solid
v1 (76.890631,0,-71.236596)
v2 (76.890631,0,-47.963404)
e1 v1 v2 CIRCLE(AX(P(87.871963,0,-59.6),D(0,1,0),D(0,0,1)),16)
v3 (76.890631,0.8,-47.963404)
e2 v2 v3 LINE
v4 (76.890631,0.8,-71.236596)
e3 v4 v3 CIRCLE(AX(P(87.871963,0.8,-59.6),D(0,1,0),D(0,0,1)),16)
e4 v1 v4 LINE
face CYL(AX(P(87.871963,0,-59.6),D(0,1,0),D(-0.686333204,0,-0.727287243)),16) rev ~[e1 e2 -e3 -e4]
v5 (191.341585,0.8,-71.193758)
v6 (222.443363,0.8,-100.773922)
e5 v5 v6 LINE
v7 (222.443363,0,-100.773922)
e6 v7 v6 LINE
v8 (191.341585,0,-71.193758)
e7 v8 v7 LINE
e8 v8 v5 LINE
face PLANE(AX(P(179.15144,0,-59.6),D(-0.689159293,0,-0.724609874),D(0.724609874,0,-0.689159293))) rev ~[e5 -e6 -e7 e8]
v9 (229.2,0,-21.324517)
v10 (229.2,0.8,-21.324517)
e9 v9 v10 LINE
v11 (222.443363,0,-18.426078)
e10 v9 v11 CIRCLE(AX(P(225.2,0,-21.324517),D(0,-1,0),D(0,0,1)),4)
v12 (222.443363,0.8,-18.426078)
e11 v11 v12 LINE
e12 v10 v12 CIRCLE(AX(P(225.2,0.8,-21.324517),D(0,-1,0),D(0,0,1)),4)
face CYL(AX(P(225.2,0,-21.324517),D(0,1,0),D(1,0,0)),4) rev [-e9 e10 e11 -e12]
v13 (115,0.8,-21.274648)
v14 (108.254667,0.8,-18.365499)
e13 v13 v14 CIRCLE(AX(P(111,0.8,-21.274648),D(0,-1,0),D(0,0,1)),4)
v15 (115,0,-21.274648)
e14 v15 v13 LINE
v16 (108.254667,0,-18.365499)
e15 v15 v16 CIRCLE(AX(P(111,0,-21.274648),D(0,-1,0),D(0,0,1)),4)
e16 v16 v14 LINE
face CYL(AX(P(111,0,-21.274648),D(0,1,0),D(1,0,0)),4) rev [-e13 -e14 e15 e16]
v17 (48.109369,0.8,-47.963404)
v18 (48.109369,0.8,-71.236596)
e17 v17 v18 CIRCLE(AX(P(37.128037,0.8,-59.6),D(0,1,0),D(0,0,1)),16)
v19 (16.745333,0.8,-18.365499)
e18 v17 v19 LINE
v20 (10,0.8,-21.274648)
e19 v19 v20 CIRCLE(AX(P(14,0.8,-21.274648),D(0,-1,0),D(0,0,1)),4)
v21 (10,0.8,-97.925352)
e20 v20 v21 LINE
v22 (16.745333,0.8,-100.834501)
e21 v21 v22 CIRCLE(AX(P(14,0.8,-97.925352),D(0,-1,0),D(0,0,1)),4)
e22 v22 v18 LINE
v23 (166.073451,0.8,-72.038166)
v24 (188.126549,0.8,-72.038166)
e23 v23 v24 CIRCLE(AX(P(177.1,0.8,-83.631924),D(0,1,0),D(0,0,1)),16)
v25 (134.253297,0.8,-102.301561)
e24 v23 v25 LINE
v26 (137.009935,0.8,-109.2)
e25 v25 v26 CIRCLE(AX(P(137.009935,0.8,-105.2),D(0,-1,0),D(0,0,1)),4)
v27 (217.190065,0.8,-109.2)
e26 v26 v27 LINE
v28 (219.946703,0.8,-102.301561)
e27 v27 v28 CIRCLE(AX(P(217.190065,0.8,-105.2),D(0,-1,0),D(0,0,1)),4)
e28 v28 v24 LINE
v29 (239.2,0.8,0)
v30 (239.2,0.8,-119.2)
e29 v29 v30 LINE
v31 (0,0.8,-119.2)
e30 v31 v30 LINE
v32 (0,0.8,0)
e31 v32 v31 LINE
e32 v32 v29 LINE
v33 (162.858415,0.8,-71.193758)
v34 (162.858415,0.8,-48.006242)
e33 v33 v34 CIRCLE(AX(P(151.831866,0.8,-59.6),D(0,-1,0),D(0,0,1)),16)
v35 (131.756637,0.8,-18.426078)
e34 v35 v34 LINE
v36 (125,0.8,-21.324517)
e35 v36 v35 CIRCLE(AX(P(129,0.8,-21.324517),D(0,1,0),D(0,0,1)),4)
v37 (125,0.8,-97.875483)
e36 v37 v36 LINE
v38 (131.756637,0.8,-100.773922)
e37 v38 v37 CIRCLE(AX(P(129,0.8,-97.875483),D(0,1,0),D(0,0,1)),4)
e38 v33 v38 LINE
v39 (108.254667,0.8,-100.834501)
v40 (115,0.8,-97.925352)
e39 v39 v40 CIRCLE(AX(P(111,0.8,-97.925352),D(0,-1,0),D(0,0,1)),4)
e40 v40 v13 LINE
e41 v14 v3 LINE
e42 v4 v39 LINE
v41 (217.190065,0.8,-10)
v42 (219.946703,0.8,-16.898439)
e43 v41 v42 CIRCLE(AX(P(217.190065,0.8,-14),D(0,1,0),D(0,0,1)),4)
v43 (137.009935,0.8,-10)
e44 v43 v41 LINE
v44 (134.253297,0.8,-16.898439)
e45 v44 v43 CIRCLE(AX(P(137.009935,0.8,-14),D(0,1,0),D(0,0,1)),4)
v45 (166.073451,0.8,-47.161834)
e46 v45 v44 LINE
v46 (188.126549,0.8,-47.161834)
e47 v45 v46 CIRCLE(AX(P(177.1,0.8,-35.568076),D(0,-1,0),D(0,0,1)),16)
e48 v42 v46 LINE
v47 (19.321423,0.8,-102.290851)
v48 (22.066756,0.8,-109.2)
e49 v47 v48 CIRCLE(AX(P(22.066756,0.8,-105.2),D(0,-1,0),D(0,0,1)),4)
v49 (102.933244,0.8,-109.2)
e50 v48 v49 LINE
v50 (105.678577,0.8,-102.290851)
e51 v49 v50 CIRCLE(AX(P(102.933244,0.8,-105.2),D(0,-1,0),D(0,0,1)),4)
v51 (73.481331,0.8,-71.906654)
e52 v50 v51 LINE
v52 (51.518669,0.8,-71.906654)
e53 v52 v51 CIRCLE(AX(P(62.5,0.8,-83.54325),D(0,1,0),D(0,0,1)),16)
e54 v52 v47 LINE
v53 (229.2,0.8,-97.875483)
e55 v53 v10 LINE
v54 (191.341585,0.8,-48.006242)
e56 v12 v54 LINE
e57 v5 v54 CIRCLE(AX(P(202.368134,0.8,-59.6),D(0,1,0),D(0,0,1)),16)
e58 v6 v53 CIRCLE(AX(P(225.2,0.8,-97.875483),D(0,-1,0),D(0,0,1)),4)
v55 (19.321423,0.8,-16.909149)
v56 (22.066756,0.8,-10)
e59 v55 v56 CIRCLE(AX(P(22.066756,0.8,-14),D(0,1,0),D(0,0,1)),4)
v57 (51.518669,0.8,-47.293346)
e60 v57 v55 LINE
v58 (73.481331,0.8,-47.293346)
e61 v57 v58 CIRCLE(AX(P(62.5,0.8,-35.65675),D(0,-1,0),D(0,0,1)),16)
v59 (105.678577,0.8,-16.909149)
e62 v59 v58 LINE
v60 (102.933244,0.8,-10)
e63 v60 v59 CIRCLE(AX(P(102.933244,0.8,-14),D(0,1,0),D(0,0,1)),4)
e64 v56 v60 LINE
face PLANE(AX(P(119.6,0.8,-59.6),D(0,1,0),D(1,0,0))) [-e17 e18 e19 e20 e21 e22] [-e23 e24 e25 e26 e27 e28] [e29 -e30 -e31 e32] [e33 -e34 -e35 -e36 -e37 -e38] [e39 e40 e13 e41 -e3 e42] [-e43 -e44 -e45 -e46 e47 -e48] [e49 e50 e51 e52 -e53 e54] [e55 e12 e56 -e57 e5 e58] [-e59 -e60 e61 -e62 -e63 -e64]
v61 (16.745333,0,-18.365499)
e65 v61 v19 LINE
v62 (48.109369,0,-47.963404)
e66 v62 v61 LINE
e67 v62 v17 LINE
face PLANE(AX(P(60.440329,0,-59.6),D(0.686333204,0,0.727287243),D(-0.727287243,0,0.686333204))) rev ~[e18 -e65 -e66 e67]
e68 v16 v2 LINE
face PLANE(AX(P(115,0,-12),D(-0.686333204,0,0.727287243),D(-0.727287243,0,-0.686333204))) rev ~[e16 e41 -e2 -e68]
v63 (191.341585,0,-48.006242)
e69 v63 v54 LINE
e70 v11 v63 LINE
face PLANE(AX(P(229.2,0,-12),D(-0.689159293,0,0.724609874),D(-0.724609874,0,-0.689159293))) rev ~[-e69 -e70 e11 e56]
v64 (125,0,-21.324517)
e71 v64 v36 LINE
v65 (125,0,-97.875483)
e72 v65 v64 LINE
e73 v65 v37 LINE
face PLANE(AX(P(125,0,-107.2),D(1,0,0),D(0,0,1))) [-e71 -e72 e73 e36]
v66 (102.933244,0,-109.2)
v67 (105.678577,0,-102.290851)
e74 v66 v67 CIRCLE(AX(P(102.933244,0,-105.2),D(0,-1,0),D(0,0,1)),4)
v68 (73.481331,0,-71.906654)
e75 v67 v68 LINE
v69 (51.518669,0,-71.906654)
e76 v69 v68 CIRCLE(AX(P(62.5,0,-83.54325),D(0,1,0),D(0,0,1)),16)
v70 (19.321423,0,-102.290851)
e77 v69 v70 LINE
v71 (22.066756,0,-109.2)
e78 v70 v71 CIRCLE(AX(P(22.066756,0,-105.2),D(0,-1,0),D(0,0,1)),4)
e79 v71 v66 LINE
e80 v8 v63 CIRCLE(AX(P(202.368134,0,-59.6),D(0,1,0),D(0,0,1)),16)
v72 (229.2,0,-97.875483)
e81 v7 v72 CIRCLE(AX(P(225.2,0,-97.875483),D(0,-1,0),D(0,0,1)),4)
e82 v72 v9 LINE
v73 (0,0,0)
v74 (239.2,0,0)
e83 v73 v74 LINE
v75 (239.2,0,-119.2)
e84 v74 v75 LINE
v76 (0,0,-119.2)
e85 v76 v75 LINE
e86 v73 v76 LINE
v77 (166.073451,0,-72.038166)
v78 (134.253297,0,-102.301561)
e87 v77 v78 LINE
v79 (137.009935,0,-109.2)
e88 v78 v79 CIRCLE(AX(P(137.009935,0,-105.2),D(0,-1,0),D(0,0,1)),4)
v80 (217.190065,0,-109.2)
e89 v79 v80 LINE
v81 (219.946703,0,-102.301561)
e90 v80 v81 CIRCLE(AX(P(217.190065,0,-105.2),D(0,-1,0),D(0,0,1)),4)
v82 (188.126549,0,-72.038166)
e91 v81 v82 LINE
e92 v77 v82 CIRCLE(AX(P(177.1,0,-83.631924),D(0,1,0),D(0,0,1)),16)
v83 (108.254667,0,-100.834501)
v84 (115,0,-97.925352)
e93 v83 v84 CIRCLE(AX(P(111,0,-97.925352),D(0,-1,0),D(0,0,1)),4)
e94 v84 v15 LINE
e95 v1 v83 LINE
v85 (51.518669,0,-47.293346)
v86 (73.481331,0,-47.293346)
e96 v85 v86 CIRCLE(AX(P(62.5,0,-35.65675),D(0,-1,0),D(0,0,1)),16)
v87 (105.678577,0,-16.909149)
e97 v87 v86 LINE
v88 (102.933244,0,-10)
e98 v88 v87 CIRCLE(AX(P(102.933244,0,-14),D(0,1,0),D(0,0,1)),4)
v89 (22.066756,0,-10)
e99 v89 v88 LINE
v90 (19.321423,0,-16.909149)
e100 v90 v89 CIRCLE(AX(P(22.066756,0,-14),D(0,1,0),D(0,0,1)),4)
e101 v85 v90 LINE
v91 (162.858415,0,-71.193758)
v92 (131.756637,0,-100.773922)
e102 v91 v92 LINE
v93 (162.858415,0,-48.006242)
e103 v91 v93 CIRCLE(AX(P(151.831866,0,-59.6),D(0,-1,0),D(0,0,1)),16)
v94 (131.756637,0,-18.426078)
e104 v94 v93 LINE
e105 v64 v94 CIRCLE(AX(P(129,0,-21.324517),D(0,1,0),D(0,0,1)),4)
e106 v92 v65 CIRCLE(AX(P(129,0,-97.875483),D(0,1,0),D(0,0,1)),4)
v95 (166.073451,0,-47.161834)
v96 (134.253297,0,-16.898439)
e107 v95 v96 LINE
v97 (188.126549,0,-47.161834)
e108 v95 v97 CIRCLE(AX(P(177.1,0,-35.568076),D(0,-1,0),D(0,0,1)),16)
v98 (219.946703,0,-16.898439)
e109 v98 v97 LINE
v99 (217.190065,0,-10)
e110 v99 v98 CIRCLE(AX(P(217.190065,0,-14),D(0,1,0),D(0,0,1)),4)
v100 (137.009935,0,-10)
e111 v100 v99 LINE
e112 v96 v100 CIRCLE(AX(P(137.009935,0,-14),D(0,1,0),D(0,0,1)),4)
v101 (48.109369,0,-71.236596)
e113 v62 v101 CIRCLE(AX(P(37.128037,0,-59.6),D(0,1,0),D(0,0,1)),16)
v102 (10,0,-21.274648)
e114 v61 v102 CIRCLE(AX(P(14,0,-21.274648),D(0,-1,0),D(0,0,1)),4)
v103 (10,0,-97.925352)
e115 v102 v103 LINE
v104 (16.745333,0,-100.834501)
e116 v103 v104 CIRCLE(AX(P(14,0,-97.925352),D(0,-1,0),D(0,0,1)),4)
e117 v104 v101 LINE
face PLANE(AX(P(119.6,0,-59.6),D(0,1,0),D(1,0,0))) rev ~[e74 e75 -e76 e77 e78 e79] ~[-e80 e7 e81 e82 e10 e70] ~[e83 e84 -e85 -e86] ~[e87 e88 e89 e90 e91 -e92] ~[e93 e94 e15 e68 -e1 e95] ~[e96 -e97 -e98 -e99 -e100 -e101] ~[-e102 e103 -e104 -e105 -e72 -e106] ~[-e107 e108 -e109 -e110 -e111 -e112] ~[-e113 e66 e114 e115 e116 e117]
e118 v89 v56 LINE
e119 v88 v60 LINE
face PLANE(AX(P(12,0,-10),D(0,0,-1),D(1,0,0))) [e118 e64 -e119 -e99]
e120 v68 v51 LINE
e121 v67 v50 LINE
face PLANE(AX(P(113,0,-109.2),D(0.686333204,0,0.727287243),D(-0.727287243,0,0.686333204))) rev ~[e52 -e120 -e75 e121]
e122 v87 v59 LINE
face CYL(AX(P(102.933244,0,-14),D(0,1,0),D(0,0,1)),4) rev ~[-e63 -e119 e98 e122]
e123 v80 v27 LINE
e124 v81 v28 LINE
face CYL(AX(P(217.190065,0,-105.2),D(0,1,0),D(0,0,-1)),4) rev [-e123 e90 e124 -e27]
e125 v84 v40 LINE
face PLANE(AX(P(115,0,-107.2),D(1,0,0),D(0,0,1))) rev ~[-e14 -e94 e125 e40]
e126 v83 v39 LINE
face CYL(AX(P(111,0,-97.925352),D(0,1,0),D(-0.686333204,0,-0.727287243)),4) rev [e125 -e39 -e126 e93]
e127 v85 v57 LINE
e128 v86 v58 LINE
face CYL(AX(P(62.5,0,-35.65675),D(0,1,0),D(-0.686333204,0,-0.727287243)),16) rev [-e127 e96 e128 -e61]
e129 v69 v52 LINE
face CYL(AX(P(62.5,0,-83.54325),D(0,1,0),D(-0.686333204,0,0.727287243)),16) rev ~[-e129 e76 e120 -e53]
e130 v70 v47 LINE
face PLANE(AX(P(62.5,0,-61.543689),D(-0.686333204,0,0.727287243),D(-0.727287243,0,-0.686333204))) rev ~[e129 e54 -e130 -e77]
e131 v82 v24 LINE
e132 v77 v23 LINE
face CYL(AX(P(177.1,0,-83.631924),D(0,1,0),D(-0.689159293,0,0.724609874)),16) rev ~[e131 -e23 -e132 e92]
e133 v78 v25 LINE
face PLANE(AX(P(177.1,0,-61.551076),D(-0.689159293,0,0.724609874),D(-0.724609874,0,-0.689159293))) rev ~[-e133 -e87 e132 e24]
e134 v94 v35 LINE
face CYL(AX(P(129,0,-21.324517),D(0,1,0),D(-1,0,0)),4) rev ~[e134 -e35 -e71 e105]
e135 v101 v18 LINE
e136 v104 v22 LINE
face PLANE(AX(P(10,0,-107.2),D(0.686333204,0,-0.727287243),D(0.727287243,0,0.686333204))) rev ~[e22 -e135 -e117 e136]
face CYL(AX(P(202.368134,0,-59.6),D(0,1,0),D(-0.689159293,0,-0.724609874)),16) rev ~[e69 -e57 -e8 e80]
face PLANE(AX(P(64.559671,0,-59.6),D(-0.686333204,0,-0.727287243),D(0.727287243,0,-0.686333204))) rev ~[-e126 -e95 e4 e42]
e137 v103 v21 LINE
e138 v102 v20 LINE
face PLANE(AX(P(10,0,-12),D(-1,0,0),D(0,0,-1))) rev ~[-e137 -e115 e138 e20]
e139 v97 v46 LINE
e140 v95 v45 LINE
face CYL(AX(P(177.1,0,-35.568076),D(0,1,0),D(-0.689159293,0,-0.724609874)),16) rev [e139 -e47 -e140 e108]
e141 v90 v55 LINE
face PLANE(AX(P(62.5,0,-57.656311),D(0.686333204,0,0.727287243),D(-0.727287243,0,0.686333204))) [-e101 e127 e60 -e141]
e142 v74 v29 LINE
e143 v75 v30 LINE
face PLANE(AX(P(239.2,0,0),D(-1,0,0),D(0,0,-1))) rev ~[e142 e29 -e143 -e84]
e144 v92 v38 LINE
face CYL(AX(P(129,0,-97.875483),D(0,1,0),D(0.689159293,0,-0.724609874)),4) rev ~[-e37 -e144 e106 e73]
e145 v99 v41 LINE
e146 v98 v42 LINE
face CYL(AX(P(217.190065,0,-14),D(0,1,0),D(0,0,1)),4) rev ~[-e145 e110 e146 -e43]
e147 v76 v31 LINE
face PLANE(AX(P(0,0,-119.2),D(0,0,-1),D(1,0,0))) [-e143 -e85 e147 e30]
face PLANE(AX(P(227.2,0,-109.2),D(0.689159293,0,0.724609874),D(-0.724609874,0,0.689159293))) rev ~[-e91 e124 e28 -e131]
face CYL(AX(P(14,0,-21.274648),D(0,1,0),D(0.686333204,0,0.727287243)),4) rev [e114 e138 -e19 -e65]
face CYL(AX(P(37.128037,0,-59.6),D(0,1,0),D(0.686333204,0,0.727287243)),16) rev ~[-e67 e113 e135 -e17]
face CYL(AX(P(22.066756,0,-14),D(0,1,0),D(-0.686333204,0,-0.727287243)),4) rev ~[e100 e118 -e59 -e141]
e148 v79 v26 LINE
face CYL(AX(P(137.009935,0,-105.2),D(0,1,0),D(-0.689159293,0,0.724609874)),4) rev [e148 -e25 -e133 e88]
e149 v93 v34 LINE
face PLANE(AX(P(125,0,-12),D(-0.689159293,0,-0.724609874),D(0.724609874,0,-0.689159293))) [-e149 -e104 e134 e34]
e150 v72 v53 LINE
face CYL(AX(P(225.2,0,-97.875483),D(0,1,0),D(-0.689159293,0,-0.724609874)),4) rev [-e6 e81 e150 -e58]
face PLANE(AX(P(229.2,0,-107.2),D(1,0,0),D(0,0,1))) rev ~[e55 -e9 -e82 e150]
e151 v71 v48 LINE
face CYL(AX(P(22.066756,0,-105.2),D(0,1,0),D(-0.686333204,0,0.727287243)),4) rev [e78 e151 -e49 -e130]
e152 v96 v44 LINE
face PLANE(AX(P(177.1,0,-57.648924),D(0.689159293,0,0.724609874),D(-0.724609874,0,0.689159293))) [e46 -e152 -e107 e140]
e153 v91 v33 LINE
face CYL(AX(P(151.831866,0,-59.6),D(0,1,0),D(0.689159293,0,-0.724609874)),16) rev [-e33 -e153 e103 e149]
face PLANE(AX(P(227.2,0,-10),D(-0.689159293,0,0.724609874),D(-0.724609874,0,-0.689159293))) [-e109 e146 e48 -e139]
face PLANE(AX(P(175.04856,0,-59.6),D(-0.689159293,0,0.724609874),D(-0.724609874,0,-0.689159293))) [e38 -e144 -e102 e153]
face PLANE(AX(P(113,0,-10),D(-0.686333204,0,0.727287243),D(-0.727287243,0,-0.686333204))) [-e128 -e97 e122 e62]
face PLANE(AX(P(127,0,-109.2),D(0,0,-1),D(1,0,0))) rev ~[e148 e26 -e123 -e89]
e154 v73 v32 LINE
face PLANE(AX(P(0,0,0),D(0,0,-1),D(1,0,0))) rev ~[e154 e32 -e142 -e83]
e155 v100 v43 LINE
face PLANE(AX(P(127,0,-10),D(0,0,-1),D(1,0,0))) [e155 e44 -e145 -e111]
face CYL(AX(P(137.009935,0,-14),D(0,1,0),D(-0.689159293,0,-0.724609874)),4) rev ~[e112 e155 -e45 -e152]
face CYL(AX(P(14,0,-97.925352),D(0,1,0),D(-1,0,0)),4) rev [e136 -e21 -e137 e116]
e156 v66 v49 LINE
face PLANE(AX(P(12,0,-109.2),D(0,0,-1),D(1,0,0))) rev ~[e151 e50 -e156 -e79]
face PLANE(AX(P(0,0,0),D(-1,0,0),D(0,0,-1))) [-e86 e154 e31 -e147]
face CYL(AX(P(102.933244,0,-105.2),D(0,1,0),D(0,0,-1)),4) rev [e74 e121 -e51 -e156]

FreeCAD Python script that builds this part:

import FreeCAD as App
import Part
import Sketcher


def edges_at(feature, points):
    """Names of the edges that pass closest to the given points."""
    edges = feature.Shape.Edges
    near = lambda p: min(range(len(edges)), key=lambda i: edges[i].distToShape(Part.Vertex(*p))[0])
    return sorted({f"Edge{near(p) + 1}" for p in points})

doc = App.newDocument("Part")
body = doc.addObject("PartDesign::Body", "Body")

sketch1 = body.newObject("Sketcher::SketchObject", "Sketch")
sketch1.AttachmentSupport = (doc.getObject("XZ_Plane"), [""])
sketch1.MapMode = "FlatFace"
sketch1.addGeometry([
    Part.LineSegment(App.Vector(0, -119.2, 0), App.Vector(0, 0, 0)),
    Part.LineSegment(App.Vector(0, 0, 0), App.Vector(239.2, 0, 0)),
    Part.LineSegment(App.Vector(239.2, 0, 0), App.Vector(239.2, -119.2, 0)),
    Part.LineSegment(App.Vector(239.2, -119.2, 0), App.Vector(0, -119.2, 0)),
    Part.LineSegment(App.Vector(113, -10, 0), App.Vector(12, -10, 0)),
    Part.LineSegment(App.Vector(12, -10, 0), App.Vector(62.5, -57.656311, 0)),
    Part.LineSegment(App.Vector(62.5, -57.656311, 0), App.Vector(113, -10, 0)),
    Part.LineSegment(App.Vector(10, -12, 0), App.Vector(10, -107.2, 0)),
    Part.LineSegment(App.Vector(10, -107.2, 0), App.Vector(60.440329, -59.6, 0)),
    Part.LineSegment(App.Vector(60.440329, -59.6, 0), App.Vector(10, -12, 0)),
    Part.LineSegment(App.Vector(64.559671, -59.6, 0), App.Vector(115, -107.2, 0)),
    Part.LineSegment(App.Vector(115, -107.2, 0), App.Vector(115, -12, 0)),
    Part.LineSegment(App.Vector(115, -12, 0), App.Vector(64.559671, -59.6, 0)),
    Part.LineSegment(App.Vector(227.2, -10, 0), App.Vector(127, -10, 0)),
    Part.LineSegment(App.Vector(127, -10, 0), App.Vector(177.1, -57.648924, 0)),
    Part.LineSegment(App.Vector(177.1, -57.648924, 0), App.Vector(227.2, -10, 0)),
    Part.LineSegment(App.Vector(125, -12, 0), App.Vector(125, -107.2, 0)),
    Part.LineSegment(App.Vector(125, -107.2, 0), App.Vector(175.04856, -59.6, 0)),
    Part.LineSegment(App.Vector(175.04856, -59.6, 0), App.Vector(125, -12, 0)),
    Part.LineSegment(App.Vector(179.15144, -59.6, 0), App.Vector(229.2, -107.2, 0)),
    Part.LineSegment(App.Vector(229.2, -107.2, 0), App.Vector(229.2, -12, 0)),
    Part.LineSegment(App.Vector(229.2, -12, 0), App.Vector(179.15144, -59.6, 0)),
    Part.LineSegment(App.Vector(62.5, -61.543689, 0), App.Vector(12, -109.2, 0)),
    Part.LineSegment(App.Vector(12, -109.2, 0), App.Vector(113, -109.2, 0)),
    Part.LineSegment(App.Vector(113, -109.2, 0), App.Vector(62.5, -61.543689, 0)),
    Part.LineSegment(App.Vector(177.1, -61.551076, 0), App.Vector(127, -109.2, 0)),
    Part.LineSegment(App.Vector(127, -109.2, 0), App.Vector(227.2, -109.2, 0)),
    Part.LineSegment(App.Vector(227.2, -109.2, 0), App.Vector(177.1, -61.551076, 0)),
], False)
sketch1.addConstraint([
    Sketcher.Constraint("Coincident", 0, 2, 1, 1),
    Sketcher.Constraint("Coincident", 1, 2, 2, 1),
    Sketcher.Constraint("Coincident", 2, 2, 3, 1),
    Sketcher.Constraint("Coincident", 3, 2, 0, 1),
    Sketcher.Constraint("Coincident", 4, 2, 5, 1),
    Sketcher.Constraint("Coincident", 5, 2, 6, 1),
    Sketcher.Constraint("Coincident", 6, 2, 4, 1),
    Sketcher.Constraint("Coincident", 7, 2, 8, 1),
    Sketcher.Constraint("Coincident", 8, 2, 9, 1),
    Sketcher.Constraint("Coincident", 9, 2, 7, 1),
    Sketcher.Constraint("Coincident", 10, 2, 11, 1),
    Sketcher.Constraint("Coincident", 11, 2, 12, 1),
    Sketcher.Constraint("Coincident", 12, 2, 10, 1),
    Sketcher.Constraint("Coincident", 13, 2, 14, 1),
    Sketcher.Constraint("Coincident", 14, 2, 15, 1),
    Sketcher.Constraint("Coincident", 15, 2, 13, 1),
    Sketcher.Constraint("Coincident", 16, 2, 17, 1),
    Sketcher.Constraint("Coincident", 17, 2, 18, 1),
    Sketcher.Constraint("Coincident", 18, 2, 16, 1),
    Sketcher.Constraint("Coincident", 19, 2, 20, 1),
    Sketcher.Constraint("Coincident", 20, 2, 21, 1),
    Sketcher.Constraint("Coincident", 21, 2, 19, 1),
    Sketcher.Constraint("Coincident", 22, 2, 23, 1),
    Sketcher.Constraint("Coincident", 23, 2, 24, 1),
    Sketcher.Constraint("Coincident", 24, 2, 22, 1),
    Sketcher.Constraint("Coincident", 25, 2, 26, 1),
    Sketcher.Constraint("Coincident", 26, 2, 27, 1),
    Sketcher.Constraint("Coincident", 27, 2, 25, 1),
    Sketcher.Constraint("Vertical", 0),
    Sketcher.Constraint("Horizontal", 1),
    Sketcher.Constraint("Vertical", 2),
    Sketcher.Constraint("Horizontal", 3),
    Sketcher.Constraint("Horizontal", 4),
    Sketcher.Constraint("Vertical", 7),
    Sketcher.Constraint("Vertical", 11),
    Sketcher.Constraint("Horizontal", 13),
    Sketcher.Constraint("Vertical", 16),
    Sketcher.Constraint("Vertical", 20),
    Sketcher.Constraint("Horizontal", 23),
    Sketcher.Constraint("Horizontal", 26),
    Sketcher.Constraint("Coincident", 0, 2, -1, 1),
    Sketcher.Constraint("Parallel", 6, 8),
    Sketcher.Constraint("Parallel", 5, 9),
    Sketcher.Constraint("Parallel", 9, 10),
    Sketcher.Constraint("Parallel", 8, 12),
    Sketcher.Constraint("Parallel", 15, 17),
    Sketcher.Constraint("Parallel", 14, 18),
    Sketcher.Constraint("Parallel", 18, 19),
    Sketcher.Constraint("Parallel", 17, 21),
    Sketcher.Constraint("Parallel", 12, 22),
    Sketcher.Constraint("Parallel", 10, 24),
    Sketcher.Constraint("Parallel", 21, 25),
    Sketcher.Constraint("Parallel", 19, 27),
    Sketcher.Constraint("Horizontal", 7, 2, 10, 2),
    Sketcher.Constraint("Horizontal", 9, 2, 11, 2),
    Sketcher.Constraint("Horizontal", 8, 2, 12, 2),
    Sketcher.Constraint("Horizontal", 6, 2, 13, 2),
    Sketcher.Constraint("Horizontal", 10, 2, 16, 2),
    Sketcher.Constraint("Horizontal", 12, 2, 17, 2),
    Sketcher.Constraint("Horizontal", 11, 2, 18, 2),
    Sketcher.Constraint("Horizontal", 16, 2, 19, 2),
    Sketcher.Constraint("Horizontal", 18, 2, 20, 2),
    Sketcher.Constraint("Horizontal", 23, 2, 25, 2),
    Sketcher.Constraint("Vertical", 4, 2, 22, 2),
    Sketcher.Constraint("Vertical", 6, 2, 23, 2),
    Sketcher.Constraint("Vertical", 13, 2, 25, 2),
    Sketcher.Constraint("Vertical", 15, 2, 26, 2),
    Sketcher.Constraint("DistanceX", 4, 2, 4, 1, 101.0),
    Sketcher.Constraint("DistanceX", 1, 1, 1, 2, 239.2),
    Sketcher.Constraint("DistanceX", 13, 2, 13, 1, 100.2),
    Sketcher.Constraint("DistanceY", 0, 1, 0, 2, 119.2),
    Sketcher.Constraint("DistanceY", 7, 2, 7, 1, 95.2),
    Sketcher.Constraint("DistanceX", -1, 1, 4, 2, 12.0),
    Sketcher.Constraint("DistanceY", 4, 2, -1, 1, 10.0),
    Sketcher.Constraint("DistanceX", -1, 1, 7, 2, 10.0),
    Sketcher.Constraint("DistanceY", 9, 2, -1, 1, 12.0),
    Sketcher.Constraint("DistanceX", -1, 1, 10, 2, 115.0),
    Sketcher.Constraint("DistanceX", -1, 1, 13, 2, 127.0),
    Sketcher.Constraint("DistanceX", -1, 1, 16, 2, 125.0),
    Sketcher.Constraint("DistanceX", 19, 2, 2, 2, 10.0),
    Sketcher.Constraint("DistanceY", 22, 2, 7, 2, 2.0),
    Sketcher.Constraint("Distance", 8, 69.354068),
    Sketcher.Constraint("DistanceX", -1, 1, 17, 2, 175.04856),
])
pad1 = body.newObject("PartDesign::Pad", "Pad")
pad1.Profile = sketch1
pad1.Length = 0.8
pad1.Reversed = True
doc.recompute()

fillet = body.newObject("PartDesign::Fillet", "Fillet")
fillet.Base = (pad1, edges_at(pad1, [
    (62.5, 0.4, -61.544),
    (60.44, 0.4, -59.6),
    (175.049, 0.4, -59.6),
    (177.1, 0.4, -57.649),
    (177.1, 0.4, -61.551),
    (62.5, 0.4, -57.656),
    (64.56, 0.4, -59.6),
    (179.151, 0.4, -59.6),
]))
fillet.Radius = 16
doc.recompute()

fillet2 = body.newObject("PartDesign::Fillet", "Fillet001")
fillet2.Base = (fillet, edges_at(fillet, [
    (113, 0.4, -109.2),
    (12, 0.4, -109.2),
    (10, 0.4, -12),
    (10, 0.4, -107.2),
    (125, 0.4, -107.2),
    (125, 0.4, -12),
    (227.2, 0.4, -10),
    (127, 0.4, -10),
    (227.2, 0.4, -109.2),
    (127, 0.4, -109.2),
    (113, 0.4, -10),
    (12, 0.4, -10),
    (115, 0.4, -12),
    (115, 0.4, -107.2),
    (229.2, 0.4, -12),
    (229.2, 0.4, -107.2),
]))
fillet2.Radius = 4

doc.recompute()
